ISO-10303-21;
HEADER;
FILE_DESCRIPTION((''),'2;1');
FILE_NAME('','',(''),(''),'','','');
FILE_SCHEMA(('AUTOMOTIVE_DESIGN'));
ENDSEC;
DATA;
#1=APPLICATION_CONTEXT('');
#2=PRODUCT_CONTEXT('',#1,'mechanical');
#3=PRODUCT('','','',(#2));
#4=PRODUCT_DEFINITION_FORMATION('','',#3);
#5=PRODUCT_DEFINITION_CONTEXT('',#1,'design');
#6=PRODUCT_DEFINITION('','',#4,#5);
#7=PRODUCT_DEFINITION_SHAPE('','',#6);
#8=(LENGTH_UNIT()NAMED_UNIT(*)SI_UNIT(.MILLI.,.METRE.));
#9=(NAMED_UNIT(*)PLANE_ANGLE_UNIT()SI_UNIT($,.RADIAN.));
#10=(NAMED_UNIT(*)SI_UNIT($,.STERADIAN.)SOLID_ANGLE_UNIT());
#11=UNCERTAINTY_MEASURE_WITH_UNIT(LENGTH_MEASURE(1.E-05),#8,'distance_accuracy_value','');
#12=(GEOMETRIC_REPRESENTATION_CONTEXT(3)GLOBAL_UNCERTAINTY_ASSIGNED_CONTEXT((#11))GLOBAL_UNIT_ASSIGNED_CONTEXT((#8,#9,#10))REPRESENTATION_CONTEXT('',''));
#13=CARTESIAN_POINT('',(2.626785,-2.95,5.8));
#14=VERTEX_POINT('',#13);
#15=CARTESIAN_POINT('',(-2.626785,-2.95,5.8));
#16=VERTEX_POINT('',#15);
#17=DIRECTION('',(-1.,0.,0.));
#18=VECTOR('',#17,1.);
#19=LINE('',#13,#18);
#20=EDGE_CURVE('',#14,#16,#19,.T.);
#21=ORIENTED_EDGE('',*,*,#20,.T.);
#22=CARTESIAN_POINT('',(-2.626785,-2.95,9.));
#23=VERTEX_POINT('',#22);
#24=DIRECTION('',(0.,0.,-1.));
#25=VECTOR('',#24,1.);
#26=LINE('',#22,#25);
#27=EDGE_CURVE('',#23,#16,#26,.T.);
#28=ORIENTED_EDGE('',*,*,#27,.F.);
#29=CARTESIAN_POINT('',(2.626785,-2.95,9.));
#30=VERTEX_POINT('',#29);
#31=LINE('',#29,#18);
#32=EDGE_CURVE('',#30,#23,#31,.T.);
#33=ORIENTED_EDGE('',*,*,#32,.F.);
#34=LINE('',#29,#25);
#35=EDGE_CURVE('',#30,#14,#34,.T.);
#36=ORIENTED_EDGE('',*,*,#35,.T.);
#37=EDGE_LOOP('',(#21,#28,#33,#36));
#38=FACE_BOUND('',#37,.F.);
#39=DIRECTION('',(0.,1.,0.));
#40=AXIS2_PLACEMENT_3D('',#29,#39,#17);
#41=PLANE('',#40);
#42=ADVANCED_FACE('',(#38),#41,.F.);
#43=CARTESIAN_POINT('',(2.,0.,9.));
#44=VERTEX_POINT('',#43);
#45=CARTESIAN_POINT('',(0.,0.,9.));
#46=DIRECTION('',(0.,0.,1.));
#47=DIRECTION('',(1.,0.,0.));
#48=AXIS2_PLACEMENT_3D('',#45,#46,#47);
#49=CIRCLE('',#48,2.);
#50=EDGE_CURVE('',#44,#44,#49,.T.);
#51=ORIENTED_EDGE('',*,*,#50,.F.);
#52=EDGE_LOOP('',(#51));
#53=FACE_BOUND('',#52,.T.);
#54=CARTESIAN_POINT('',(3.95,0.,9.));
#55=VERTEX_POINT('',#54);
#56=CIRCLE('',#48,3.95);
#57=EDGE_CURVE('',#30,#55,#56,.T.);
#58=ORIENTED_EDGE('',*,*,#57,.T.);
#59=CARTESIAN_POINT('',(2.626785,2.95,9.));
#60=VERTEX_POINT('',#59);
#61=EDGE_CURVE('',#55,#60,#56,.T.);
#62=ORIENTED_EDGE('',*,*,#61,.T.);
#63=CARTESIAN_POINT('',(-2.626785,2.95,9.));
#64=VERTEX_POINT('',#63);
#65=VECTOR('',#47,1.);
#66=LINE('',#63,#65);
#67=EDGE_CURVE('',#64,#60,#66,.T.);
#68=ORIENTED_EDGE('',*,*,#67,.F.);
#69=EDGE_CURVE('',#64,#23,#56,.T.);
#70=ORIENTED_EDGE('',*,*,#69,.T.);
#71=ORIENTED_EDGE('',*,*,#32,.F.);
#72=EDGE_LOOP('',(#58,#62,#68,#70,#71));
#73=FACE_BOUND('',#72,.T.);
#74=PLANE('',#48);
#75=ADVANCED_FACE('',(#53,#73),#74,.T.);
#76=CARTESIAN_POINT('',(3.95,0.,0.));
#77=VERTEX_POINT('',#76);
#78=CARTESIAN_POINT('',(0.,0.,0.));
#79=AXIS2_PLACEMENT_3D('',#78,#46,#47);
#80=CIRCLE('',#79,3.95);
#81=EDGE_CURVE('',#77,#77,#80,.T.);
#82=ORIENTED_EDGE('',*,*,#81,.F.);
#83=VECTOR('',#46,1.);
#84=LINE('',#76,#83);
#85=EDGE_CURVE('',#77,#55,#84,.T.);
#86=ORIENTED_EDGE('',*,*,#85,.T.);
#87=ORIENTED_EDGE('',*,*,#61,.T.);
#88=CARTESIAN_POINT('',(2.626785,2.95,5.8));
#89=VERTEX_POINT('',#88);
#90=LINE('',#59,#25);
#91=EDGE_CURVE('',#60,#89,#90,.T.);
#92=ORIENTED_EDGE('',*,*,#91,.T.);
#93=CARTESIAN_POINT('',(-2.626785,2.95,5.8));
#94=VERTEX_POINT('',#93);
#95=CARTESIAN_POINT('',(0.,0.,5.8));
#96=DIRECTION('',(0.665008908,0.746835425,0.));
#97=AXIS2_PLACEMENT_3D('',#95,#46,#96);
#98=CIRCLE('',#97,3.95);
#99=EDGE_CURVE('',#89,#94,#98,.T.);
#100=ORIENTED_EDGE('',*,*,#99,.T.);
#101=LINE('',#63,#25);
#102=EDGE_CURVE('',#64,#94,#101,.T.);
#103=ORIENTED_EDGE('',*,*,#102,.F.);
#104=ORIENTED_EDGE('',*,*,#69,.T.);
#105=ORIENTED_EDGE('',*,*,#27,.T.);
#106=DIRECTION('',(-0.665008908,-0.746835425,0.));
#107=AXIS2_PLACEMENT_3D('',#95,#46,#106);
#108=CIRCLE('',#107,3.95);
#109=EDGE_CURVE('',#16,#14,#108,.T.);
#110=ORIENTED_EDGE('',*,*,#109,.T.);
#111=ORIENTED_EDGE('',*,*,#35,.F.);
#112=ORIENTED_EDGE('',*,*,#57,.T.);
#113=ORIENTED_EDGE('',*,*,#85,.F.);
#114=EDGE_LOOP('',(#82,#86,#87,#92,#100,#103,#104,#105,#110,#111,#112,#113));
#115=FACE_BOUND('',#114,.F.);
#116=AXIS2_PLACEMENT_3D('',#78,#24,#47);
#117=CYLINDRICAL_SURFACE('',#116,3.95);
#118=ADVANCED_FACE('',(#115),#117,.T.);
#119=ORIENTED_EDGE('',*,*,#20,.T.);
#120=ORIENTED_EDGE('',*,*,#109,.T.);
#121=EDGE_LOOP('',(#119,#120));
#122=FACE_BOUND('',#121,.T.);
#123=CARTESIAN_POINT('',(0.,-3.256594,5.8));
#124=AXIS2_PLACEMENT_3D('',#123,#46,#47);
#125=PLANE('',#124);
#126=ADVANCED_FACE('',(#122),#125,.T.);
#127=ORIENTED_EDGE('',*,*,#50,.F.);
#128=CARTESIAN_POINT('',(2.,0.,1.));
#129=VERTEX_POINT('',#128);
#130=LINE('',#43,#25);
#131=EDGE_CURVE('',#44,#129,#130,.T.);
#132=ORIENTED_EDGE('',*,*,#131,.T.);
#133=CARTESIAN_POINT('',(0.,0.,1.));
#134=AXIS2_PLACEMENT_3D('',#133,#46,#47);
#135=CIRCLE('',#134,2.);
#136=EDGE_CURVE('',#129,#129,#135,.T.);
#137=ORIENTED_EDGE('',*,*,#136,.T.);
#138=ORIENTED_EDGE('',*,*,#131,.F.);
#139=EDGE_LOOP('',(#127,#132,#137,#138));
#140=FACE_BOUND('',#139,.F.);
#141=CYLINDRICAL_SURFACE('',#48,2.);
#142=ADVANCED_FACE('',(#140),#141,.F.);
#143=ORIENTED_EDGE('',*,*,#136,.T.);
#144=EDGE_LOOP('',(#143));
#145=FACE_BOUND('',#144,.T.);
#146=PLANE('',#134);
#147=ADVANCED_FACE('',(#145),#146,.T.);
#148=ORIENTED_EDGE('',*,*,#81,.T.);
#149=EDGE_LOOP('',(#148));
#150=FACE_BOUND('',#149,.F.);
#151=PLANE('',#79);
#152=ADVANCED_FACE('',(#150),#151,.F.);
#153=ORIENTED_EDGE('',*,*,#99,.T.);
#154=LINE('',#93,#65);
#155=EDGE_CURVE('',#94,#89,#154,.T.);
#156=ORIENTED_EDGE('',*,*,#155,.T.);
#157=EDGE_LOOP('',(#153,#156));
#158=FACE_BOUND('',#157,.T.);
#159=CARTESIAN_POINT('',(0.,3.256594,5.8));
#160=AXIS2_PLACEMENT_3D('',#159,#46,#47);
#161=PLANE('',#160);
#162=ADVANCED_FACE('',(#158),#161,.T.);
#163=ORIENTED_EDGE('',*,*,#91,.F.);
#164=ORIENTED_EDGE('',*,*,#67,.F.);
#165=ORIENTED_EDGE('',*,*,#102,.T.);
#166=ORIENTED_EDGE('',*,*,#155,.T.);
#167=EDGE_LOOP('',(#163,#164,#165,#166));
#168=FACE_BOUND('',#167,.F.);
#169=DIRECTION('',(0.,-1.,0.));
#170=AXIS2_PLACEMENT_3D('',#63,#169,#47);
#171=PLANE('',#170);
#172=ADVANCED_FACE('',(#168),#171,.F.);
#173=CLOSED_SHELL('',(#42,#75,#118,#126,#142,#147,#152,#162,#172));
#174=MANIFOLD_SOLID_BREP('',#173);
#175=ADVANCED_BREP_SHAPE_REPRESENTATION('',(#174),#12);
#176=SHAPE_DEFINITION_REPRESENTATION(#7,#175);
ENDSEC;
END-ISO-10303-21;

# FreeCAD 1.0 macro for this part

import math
import FreeCAD as App
import Part
import Sketcher
Q = App.Units.Quantity

doc = App.newDocument("Part")
body = doc.addObject("PartDesign::Body", "Body")

# Sketch on XY plane
sketch1 = doc.addObject("Sketcher::SketchObject", "Sketch")
body.addObject(sketch1)
sketch1.AttachmentSupport = (doc.XY_Plane, [""])
sketch1.MapMode = "FlatFace"
sketch1.addGeometry(Part.Circle(App.Vector(0, 0, 0), App.Vector(0, 0, 1), 4), False)
sketch1.addConstraint([
    Sketcher.Constraint("Coincident", 0, 3, -1, 1),
    Sketcher.Constraint("Diameter", 0, Q("7.9 mm")),
])
pad1 = doc.addObject("PartDesign::Pad", "Pad")
body.addObject(pad1)
pad1.Profile = sketch1
pad1.Length = 9

# Sketch on XY plane
sketch2 = doc.addObject("Sketcher::SketchObject", "Sketch001")
body.addObject(sketch2)
sketch2.AttachmentSupport = (doc.XY_Plane, [""])
sketch2.MapMode = "FlatFace"
sketch2.AttachmentOffset = App.Placement(App.Vector(0, 0, 9), App.Rotation())
sketch2.addGeometry([
    Part.LineSegment(App.Vector(2.6, -3, 0), App.Vector(-2.6, -3, 0)),
    Part.ArcOfCircle(Part.Circle(App.Vector(0, 0, 0), App.Vector(0, 0, 1), 3.9), math.radians(-132), math.radians(-48)),
    Part.ArcOfCircle(Part.Circle(App.Vector(0, 0, 0), App.Vector(0, 0, 1), 3.9), math.radians(48), math.radians(132)),
    Part.LineSegment(App.Vector(-2.6, 3, 0), App.Vector(2.6, 3, 0)),
], False)
sketch2.addConstraint([
    Sketcher.Constraint("Coincident", 0, 1, 1, 2),
    Sketcher.Constraint("Coincident", 1, 1, 0, 2),
    Sketcher.Constraint("Coincident", 2, 1, 3, 2),
    Sketcher.Constraint("Coincident", 3, 1, 2, 2),
    Sketcher.Constraint("Horizontal", 0),
    Sketcher.Constraint("Horizontal", 3),
    Sketcher.Constraint("Coincident", 1, 3, -1, 1),
    Sketcher.Constraint("Coincident", 2, 3, -1, 1),
    Sketcher.Constraint("Equal", 1, 2),
    Sketcher.Constraint("Vertical", 0, 1, 2, 1),
    Sketcher.Constraint("Radius", 1, Q("3.95 mm")),
    Sketcher.Constraint("DistanceY", 0, 1, 2, 1, Q("5.9 mm")),
])
pocket1 = doc.addObject("PartDesign::Pocket", "Pocket")
body.addObject(pocket1)
pocket1.Profile = sketch2
pocket1.Length = 3.2

# Sketch on XY plane
sketch3 = doc.addObject("Sketcher::SketchObject", "Sketch002")
body.addObject(sketch3)
sketch3.AttachmentSupport = (doc.XY_Plane, [""])
sketch3.MapMode = "FlatFace"
sketch3.AttachmentOffset = App.Placement(App.Vector(0, 0, 9), App.Rotation())
sketch3.addGeometry(Part.Circle(App.Vector(0, 0, 0), App.Vector(0, 0, 1), 2), False)
sketch3.addConstraint([
    Sketcher.Constraint("Coincident", 0, 3, -1, 1),
    Sketcher.Constraint("Diameter", 0, Q("4 mm")),
])
pocket2 = doc.addObject("PartDesign::Pocket", "Pocket001")
body.addObject(pocket2)
pocket2.Profile = sketch3
pocket2.Length = 8

doc.recompute()
